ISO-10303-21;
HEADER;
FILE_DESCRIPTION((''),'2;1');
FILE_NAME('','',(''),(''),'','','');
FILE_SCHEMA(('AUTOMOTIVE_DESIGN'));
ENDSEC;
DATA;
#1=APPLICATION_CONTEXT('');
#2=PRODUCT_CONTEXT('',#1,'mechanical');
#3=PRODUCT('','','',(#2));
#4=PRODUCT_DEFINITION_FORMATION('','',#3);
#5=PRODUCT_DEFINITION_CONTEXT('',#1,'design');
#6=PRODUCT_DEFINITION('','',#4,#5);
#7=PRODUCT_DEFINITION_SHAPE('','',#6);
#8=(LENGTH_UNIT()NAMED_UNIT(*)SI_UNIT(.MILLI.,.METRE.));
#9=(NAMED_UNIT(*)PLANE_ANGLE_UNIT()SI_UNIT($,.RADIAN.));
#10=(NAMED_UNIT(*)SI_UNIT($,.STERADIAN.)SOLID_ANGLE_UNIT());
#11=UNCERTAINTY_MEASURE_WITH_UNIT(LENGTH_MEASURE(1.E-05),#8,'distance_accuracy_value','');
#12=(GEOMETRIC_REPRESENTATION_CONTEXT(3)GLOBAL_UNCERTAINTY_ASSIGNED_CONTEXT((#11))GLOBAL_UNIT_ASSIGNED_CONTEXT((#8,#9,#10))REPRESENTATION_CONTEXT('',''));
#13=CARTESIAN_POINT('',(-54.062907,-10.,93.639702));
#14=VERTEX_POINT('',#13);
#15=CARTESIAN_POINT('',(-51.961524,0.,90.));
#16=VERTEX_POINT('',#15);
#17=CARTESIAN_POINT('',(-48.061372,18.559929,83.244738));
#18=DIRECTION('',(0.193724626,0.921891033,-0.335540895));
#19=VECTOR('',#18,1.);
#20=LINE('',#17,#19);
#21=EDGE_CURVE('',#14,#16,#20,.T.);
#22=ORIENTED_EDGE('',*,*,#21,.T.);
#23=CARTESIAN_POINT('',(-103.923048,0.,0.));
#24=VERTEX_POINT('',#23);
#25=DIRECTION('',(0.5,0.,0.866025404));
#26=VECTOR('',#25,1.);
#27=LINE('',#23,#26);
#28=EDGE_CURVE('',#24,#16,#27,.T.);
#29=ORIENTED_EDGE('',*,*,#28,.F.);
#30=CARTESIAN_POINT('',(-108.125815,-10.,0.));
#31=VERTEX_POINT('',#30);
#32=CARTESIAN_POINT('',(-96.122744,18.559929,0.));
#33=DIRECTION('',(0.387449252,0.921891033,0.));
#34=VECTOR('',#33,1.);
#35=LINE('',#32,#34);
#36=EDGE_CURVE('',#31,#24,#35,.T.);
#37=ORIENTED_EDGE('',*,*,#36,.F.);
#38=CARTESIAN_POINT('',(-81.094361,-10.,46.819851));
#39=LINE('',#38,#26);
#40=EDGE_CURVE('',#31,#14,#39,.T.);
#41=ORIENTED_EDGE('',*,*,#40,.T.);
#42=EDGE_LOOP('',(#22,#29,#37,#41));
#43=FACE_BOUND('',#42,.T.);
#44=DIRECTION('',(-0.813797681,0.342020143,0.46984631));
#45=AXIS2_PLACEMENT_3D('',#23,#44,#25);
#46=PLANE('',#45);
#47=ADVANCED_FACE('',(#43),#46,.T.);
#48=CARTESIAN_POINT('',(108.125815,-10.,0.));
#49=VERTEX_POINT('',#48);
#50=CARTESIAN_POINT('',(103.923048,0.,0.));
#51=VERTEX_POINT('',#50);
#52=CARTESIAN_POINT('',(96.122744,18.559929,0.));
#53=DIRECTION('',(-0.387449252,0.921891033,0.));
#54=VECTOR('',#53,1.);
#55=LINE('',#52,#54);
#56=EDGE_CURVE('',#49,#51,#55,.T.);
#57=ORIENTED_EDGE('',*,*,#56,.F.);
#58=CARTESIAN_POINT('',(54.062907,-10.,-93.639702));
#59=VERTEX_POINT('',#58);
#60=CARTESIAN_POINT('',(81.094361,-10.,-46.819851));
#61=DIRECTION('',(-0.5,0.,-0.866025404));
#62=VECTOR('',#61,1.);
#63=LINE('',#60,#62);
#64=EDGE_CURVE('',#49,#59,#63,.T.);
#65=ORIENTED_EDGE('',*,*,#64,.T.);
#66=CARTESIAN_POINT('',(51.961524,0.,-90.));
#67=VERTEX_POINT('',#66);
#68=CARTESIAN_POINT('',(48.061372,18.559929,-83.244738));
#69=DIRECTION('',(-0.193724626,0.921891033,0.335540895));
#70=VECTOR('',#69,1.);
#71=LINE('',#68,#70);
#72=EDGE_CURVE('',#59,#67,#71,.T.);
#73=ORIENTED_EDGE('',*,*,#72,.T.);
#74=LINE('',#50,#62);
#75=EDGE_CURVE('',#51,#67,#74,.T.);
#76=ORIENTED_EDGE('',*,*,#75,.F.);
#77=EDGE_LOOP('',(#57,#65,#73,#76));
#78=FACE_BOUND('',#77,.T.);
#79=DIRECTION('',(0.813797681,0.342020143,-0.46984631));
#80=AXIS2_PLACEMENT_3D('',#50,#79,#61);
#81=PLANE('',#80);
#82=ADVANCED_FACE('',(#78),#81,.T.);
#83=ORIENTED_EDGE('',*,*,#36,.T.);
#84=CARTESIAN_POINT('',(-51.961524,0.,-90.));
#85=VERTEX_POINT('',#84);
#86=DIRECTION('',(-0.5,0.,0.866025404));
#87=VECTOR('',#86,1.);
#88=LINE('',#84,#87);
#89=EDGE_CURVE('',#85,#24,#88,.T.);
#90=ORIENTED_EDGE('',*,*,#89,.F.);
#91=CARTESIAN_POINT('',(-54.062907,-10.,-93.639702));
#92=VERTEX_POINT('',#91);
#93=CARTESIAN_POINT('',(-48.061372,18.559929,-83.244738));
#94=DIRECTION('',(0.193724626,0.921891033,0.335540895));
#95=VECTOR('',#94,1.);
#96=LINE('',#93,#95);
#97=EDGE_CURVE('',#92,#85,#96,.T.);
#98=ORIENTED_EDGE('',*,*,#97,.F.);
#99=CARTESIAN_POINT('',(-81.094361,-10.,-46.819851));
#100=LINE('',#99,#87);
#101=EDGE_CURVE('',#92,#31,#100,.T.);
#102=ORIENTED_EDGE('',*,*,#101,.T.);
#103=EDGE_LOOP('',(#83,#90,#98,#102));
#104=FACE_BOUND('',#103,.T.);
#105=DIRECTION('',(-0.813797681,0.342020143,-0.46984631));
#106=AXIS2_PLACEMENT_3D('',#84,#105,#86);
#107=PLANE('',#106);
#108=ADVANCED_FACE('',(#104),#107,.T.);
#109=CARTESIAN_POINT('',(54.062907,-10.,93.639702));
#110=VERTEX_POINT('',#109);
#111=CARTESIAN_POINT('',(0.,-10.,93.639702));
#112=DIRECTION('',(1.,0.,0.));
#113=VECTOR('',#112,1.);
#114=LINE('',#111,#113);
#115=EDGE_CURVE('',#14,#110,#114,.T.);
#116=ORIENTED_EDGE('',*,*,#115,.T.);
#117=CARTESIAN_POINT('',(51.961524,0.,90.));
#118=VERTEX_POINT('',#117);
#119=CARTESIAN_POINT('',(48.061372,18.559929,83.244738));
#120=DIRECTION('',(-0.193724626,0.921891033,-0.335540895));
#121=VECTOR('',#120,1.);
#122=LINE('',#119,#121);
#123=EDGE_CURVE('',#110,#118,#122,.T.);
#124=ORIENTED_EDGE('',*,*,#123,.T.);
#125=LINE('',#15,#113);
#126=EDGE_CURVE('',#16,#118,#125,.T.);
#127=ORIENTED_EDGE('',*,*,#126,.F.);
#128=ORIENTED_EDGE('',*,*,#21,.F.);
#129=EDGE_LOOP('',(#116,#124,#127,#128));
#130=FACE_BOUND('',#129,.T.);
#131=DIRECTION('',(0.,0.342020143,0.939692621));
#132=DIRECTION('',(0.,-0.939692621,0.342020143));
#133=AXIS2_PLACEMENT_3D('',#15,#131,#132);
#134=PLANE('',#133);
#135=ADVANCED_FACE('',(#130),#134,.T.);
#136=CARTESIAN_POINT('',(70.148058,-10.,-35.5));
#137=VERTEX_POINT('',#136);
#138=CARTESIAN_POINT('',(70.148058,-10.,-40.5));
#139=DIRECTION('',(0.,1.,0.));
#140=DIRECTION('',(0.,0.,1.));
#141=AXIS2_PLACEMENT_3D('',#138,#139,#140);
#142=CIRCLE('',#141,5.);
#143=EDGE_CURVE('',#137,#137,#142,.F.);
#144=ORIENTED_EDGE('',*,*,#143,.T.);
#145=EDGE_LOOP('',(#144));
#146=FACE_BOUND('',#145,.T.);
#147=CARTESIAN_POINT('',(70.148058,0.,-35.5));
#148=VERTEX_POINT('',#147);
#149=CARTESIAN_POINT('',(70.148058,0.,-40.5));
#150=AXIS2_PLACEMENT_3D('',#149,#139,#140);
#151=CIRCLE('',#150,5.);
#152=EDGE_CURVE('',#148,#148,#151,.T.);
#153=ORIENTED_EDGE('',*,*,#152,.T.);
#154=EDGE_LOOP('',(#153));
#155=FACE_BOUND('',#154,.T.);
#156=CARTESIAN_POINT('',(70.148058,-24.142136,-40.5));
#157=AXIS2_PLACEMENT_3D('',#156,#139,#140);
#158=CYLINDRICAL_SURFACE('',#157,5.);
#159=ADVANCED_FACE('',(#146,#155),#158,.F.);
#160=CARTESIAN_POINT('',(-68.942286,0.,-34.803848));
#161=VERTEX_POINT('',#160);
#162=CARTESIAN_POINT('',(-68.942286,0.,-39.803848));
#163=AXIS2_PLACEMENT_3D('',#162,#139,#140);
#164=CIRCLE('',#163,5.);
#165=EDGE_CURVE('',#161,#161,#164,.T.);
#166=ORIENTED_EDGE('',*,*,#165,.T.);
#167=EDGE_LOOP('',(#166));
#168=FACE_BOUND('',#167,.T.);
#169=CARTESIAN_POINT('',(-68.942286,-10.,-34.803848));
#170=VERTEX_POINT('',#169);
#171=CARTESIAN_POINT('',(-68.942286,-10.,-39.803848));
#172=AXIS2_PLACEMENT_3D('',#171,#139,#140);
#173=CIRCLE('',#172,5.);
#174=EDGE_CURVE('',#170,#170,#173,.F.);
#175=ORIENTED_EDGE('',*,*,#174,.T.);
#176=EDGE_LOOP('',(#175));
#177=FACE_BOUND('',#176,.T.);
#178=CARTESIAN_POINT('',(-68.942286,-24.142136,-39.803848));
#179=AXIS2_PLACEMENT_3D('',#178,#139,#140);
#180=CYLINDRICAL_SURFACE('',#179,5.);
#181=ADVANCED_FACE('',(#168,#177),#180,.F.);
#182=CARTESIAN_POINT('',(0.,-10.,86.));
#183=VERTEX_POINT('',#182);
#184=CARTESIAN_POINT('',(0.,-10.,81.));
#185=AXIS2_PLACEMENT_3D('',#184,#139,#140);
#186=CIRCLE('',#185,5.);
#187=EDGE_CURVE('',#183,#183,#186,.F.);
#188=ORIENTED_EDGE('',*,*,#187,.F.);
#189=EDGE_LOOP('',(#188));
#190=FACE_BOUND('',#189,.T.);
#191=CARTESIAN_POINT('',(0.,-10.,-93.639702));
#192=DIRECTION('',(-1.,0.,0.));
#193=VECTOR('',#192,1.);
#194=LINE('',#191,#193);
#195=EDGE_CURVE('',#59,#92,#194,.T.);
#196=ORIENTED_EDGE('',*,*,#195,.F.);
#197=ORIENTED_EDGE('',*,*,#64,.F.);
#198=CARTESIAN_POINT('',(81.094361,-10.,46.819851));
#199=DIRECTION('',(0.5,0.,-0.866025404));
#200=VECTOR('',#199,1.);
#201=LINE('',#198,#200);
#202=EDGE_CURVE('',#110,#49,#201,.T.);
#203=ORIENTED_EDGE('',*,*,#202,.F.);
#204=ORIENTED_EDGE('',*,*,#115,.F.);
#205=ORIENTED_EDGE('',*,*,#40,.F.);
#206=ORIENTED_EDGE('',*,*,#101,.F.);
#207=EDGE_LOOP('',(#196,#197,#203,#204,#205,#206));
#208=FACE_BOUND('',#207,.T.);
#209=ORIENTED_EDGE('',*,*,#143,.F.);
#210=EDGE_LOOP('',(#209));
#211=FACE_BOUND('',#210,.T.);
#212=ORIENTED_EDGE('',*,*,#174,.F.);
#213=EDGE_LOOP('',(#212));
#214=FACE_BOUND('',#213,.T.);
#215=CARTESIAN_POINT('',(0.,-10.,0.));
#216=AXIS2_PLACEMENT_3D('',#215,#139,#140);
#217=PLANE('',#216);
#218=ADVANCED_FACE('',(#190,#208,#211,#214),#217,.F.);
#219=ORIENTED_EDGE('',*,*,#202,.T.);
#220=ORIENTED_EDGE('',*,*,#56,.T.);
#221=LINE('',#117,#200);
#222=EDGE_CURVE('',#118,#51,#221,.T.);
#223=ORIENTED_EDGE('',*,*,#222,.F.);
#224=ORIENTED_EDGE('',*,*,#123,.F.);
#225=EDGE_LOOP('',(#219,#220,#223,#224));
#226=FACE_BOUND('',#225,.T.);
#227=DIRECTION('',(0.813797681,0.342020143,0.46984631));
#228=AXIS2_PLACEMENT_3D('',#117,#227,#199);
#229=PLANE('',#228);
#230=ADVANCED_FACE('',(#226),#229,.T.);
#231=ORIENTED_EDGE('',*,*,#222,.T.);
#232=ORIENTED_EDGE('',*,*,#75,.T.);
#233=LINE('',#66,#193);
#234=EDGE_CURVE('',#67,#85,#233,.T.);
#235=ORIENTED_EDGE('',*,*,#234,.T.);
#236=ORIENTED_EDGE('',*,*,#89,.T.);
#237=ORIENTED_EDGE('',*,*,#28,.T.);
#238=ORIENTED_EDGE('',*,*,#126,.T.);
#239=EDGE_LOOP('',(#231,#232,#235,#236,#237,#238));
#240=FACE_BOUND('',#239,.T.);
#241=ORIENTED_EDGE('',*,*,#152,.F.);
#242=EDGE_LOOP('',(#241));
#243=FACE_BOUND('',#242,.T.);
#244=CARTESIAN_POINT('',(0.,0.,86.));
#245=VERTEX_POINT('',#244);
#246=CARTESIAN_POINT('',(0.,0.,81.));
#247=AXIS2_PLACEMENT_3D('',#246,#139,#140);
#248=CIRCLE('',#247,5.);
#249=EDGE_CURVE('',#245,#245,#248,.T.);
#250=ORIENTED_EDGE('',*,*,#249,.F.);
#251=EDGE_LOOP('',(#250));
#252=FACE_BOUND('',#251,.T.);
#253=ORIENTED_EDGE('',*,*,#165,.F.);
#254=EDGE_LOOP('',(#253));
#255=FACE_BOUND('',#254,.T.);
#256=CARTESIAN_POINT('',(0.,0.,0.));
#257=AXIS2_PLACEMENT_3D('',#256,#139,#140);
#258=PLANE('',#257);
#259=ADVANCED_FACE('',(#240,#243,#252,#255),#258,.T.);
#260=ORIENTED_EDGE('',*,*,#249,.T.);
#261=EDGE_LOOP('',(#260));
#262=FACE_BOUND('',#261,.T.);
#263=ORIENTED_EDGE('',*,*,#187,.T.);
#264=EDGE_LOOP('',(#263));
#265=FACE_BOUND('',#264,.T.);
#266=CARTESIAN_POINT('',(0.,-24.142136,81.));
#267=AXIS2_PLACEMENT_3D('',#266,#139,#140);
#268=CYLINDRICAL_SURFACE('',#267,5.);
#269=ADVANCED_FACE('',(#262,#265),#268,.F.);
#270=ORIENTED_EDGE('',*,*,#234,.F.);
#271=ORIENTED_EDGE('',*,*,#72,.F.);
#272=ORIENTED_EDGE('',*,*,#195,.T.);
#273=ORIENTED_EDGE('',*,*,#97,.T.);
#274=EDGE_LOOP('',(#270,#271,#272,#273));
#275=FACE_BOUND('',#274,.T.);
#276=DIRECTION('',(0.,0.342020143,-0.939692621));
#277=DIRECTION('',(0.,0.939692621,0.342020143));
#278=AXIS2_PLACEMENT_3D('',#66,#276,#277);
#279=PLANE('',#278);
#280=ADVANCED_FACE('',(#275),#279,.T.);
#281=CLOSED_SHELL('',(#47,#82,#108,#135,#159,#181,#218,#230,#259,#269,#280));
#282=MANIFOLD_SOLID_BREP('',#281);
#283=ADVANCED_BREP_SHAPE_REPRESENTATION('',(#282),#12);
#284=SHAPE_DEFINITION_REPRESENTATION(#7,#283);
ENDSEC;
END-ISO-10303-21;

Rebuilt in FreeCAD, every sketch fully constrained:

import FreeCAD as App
import Part
import Sketcher
Q = App.Units.Quantity

doc = App.newDocument("Part")
body = doc.addObject("PartDesign::Body", "Body")

# Sketch on XZ plane
sketch1 = doc.addObject("Sketcher::SketchObject", "Sketch")
body.addObject(sketch1)
sketch1.AttachmentSupport = (doc.XZ_Plane, [""])
sketch1.MapMode = "FlatFace"
sketch1.addGeometry([
    Part.LineSegment(App.Vector(103.923048, 0, 0), App.Vector(51.961524, -90, 0)),  # 0
    Part.LineSegment(App.Vector(51.961524, -90, 0), App.Vector(-51.961524, -90, 0)),  # 1
    Part.LineSegment(App.Vector(-51.961524, -90, 0), App.Vector(-103.923048, 0, 0)),  # 2
    Part.LineSegment(App.Vector(-103.923048, 0, 0), App.Vector(-51.961524, 90, 0)),  # 3
    Part.LineSegment(App.Vector(-51.961524, 90, 0), App.Vector(51.961524, 90, 0)),  # 4
    Part.LineSegment(App.Vector(51.961524, 90, 0), App.Vector(103.923048, 0, 0)),  # 5
], False)
sketch1.addConstraint([
    Sketcher.Constraint("Coincident", 0, 2, 1, 1),
    Sketcher.Constraint("Coincident", 1, 2, 2, 1),
    Sketcher.Constraint("Coincident", 2, 2, 3, 1),
    Sketcher.Constraint("Coincident", 3, 2, 4, 1),
    Sketcher.Constraint("Coincident", 4, 2, 5, 1),
    Sketcher.Constraint("Coincident", 5, 2, 0, 1),
    Sketcher.Constraint("Horizontal", 1),
    Sketcher.Constraint("Horizontal", 4),
    Sketcher.Constraint("Symmetric", 0, 2, 3, 2, -1, 1),
    Sketcher.Constraint("Symmetric", 2, 2, 5, 2, -1, 1),
    Sketcher.Constraint("PointOnObject", 2, 2, -1),
    Sketcher.Constraint("Parallel", 2, 5),
    Sketcher.Constraint("Vertical", 1, 2, 3, 2),
    Sketcher.Constraint("Angle", 0, Q("-120 deg")),
    Sketcher.Constraint("DistanceY", 0, 2, -1, 1, 90.0),
    Sketcher.Constraint("DistanceX", 1, 2, 1, 1, 103.923048),
])
pad1 = doc.addObject("PartDesign::Pad", "Pad")
body.addObject(pad1)
pad1.Profile = sketch1
pad1.Length = 10
pad1.TaperAngle = 20

# Sketch on XZ plane
sketch2 = doc.addObject("Sketcher::SketchObject", "Sketch001")
body.addObject(sketch2)
sketch2.AttachmentSupport = (doc.XZ_Plane, [""])
sketch2.MapMode = "FlatFace"
sketch2.addGeometry([
    Part.Circle(App.Vector(0, 81, 0), App.Vector(0, 0, 1), 5),
    Part.Circle(App.Vector(70.148058, -40.5, 0), App.Vector(0, 0, 1), 5),
    Part.Circle(App.Vector(-68.942286, -39.803848, 0), App.Vector(0, 0, 1), 5),
], False)
sketch2.addConstraint([
    Sketcher.Constraint("Equal", 0, 1),
    Sketcher.Constraint("Equal", 1, 2),
    Sketcher.Constraint("PointOnObject", 0, 3, -2),
    Sketcher.Constraint("Diameter", 0, 10.0),
    Sketcher.Constraint("DistanceY", -1, 1, 0, 3, 81.0),
    Sketcher.Constraint("DistanceY", 1, 3, -1, 1, 40.5),
    Sketcher.Constraint("DistanceX", -1, 1, 1, 3, 70.148058),
    Sketcher.Constraint("DistanceX", 2, 3, -1, 1, 68.942286),
    Sketcher.Constraint("DistanceY", 2, 3, -1, 1, 39.803848),
])
pocket1 = doc.addObject("PartDesign::Pocket", "Pocket")
body.addObject(pocket1)
pocket1.Profile = sketch2
pocket1.Length = 10
pocket1.Reversed = True

doc.recompute()
